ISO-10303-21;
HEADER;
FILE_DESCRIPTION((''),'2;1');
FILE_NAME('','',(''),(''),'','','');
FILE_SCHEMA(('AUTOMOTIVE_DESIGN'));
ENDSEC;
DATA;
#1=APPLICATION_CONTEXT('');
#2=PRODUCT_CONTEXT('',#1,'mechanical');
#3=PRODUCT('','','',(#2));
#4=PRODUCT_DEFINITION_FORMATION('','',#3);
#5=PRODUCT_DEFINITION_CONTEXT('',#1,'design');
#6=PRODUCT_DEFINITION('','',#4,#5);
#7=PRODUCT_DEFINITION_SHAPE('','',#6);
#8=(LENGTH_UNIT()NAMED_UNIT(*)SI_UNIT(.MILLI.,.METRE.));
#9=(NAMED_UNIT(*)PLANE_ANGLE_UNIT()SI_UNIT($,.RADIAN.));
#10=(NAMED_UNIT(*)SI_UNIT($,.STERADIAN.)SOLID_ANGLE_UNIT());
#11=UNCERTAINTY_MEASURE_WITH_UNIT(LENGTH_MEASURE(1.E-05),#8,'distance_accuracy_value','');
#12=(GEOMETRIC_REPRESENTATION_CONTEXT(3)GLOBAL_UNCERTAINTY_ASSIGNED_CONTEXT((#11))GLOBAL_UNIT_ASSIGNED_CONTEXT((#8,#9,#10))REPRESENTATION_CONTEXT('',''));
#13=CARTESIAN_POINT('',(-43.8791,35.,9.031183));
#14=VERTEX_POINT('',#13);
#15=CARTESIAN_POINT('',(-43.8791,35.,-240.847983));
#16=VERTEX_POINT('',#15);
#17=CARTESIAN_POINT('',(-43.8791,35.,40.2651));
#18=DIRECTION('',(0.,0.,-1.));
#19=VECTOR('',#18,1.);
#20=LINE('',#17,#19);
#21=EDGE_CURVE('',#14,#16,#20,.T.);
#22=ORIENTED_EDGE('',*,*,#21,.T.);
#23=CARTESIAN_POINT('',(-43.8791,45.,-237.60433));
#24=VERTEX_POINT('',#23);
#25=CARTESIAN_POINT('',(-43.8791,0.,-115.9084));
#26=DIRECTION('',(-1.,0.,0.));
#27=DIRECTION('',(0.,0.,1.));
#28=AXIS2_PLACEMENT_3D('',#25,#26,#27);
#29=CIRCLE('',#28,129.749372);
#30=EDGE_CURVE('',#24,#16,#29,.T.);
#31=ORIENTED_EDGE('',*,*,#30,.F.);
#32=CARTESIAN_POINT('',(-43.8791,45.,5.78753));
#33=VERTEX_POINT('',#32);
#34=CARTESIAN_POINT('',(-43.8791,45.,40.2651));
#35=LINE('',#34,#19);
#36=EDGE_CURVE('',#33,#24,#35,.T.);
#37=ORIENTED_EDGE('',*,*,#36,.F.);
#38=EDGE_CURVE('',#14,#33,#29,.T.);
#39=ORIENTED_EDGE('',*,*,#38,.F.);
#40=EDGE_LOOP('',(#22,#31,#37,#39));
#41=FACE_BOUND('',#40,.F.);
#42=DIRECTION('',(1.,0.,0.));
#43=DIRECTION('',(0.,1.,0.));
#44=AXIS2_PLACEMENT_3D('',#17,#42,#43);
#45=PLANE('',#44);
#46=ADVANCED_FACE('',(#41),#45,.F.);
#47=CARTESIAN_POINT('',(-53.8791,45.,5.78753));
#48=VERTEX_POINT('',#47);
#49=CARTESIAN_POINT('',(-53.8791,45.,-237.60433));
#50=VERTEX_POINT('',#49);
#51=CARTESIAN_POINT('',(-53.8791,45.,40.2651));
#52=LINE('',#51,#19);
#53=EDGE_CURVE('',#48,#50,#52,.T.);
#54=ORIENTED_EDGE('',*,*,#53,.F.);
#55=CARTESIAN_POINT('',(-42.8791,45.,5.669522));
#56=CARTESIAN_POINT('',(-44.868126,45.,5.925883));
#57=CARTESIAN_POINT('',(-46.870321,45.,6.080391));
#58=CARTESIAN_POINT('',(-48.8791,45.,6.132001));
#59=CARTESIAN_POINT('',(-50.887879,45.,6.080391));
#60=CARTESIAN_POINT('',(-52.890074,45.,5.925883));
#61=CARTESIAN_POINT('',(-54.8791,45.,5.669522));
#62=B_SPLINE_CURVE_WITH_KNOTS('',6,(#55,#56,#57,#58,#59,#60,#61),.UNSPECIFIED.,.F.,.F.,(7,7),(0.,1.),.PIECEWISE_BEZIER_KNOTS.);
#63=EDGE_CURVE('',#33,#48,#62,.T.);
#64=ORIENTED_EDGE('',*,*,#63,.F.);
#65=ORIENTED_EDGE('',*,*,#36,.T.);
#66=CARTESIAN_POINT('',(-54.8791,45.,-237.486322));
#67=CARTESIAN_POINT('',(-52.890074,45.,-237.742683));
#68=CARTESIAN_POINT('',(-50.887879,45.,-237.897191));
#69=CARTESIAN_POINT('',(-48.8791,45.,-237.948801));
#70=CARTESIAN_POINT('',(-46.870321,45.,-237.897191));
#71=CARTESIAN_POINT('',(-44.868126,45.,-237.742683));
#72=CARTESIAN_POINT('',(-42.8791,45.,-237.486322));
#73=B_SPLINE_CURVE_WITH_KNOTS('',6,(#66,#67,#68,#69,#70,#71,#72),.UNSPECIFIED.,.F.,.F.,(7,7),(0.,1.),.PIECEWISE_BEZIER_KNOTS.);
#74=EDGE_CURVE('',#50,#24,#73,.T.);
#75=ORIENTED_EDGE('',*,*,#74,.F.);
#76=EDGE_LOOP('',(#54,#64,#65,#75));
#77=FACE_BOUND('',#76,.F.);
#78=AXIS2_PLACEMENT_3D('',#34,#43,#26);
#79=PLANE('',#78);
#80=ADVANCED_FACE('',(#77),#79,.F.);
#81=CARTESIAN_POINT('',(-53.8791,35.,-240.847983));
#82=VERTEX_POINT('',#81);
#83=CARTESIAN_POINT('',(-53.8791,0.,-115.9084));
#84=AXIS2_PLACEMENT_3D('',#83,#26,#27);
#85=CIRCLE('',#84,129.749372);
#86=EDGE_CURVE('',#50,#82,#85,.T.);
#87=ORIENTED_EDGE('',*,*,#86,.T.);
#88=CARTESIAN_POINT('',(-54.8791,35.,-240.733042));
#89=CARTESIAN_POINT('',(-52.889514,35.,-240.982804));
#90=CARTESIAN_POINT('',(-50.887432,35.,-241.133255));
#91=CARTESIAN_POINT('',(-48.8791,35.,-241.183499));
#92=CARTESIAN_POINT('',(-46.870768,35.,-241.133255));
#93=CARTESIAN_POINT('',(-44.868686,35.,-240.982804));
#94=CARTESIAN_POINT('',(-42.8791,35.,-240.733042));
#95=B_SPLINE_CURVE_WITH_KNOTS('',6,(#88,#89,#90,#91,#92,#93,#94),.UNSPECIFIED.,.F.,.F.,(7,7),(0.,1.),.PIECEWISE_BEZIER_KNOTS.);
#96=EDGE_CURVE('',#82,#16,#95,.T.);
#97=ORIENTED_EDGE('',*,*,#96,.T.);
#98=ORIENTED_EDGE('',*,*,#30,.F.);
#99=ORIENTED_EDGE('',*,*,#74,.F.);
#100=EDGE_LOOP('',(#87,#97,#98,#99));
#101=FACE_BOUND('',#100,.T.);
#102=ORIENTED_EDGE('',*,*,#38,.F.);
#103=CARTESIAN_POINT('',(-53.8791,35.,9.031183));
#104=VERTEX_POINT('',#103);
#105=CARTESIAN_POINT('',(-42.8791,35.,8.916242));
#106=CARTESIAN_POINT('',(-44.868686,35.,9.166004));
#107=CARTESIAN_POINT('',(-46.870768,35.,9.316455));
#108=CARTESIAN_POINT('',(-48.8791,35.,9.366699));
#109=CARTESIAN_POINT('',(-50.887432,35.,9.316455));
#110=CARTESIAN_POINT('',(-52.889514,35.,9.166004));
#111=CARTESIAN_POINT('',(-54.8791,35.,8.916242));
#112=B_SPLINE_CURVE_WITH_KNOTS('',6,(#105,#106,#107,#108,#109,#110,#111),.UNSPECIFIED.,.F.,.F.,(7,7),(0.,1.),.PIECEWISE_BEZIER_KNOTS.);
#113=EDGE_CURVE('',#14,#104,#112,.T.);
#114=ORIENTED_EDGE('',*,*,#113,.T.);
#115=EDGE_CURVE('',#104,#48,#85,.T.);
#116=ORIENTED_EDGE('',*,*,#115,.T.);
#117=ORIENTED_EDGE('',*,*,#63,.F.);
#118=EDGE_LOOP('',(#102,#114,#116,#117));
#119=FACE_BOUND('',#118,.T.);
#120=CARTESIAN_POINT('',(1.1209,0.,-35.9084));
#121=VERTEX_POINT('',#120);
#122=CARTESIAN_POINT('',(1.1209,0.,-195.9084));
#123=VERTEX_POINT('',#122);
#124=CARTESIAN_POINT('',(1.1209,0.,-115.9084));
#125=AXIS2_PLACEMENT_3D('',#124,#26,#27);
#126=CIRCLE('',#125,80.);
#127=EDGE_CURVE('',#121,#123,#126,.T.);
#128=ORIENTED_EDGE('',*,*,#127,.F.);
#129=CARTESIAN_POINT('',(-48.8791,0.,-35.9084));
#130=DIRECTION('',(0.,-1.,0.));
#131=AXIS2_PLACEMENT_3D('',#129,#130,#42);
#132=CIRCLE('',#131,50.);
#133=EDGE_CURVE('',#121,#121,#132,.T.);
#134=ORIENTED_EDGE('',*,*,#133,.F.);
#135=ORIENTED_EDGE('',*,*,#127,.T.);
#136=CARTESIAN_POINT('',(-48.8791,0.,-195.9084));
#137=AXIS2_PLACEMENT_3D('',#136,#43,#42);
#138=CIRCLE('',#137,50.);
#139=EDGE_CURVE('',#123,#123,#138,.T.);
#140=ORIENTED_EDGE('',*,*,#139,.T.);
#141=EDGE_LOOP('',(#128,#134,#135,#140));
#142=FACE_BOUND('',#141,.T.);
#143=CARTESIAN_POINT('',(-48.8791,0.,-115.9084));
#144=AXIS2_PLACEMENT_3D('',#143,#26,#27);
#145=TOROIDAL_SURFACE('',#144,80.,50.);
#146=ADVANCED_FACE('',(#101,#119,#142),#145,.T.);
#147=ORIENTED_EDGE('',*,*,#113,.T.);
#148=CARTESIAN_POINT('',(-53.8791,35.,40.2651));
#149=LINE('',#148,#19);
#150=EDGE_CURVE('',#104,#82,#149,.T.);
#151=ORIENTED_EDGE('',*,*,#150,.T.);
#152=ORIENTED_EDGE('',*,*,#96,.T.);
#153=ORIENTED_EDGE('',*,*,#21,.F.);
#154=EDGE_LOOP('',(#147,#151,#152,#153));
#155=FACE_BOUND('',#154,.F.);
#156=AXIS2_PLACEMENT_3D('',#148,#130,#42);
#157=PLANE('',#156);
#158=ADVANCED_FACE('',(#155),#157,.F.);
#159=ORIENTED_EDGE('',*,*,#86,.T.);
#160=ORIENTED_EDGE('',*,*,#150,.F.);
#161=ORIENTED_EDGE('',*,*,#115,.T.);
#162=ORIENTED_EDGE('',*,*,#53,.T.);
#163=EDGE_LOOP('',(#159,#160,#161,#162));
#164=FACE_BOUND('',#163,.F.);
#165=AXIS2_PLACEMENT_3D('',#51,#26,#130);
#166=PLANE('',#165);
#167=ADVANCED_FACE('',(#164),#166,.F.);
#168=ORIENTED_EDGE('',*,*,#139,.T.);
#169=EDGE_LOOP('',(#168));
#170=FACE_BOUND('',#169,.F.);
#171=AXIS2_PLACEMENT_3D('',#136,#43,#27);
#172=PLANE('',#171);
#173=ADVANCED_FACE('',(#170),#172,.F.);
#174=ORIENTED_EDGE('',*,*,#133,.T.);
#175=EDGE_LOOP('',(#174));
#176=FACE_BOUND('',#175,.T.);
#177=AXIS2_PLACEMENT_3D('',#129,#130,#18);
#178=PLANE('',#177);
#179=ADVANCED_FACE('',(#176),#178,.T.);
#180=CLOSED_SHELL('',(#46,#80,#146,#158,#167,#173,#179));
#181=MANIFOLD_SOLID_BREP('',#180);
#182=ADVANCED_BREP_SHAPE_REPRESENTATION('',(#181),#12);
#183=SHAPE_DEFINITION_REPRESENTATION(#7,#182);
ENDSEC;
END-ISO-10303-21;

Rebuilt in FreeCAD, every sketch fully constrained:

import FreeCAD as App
import Part
import Sketcher

V = App.Vector
Q = App.Units.Quantity

doc = App.newDocument("Part")
body = doc.addObject("PartDesign::Body", "Body")

# Sketch on XZ plane
sketch1 = doc.addObject("Sketcher::SketchObject", "Sketch")
body.addObject(sketch1)
sketch1.AttachmentSupport = (doc.XZ_Plane, [""])
sketch1.MapMode = "FlatFace"
sketch1.addGeometry(Part.Circle(V(-48.8791, -35.9084, 0), V(0, 0, 1), 50), False)
sketch1.addGeometry(Part.LineSegment(V(-48.8791, -115.9084, 0), V(-58.8791, -115.9084, 0)), True)  # axis
sketch1.addConstraint([
    Sketcher.Constraint("Horizontal", 1),
    Sketcher.Constraint("Vertical", 0, 3, 1, 1),
    Sketcher.Constraint("Diameter", 0, Q("3.937 in")),
    Sketcher.Constraint("DistanceX", 1, 2, 1, 1, Q("0.3937 in")),
    Sketcher.Constraint("DistanceY", 1, 1, 0, 3, Q("3.1496 in")),
    Sketcher.Constraint("DistanceX", 0, 3, -1, 1, Q("48.879 mm")),
    Sketcher.Constraint("DistanceY", 0, 3, -1, 1, Q("35.9084 mm")),
])
revolution = doc.addObject("PartDesign::Revolution", "Revolution")
body.addObject(revolution)
revolution.Profile = sketch1
revolution.ReferenceAxis = (sketch1, ["Axis0"])
revolution.Angle = 180

# Sketch on XY plane
sketch2 = doc.addObject("Sketcher::SketchObject", "Sketch001")
body.addObject(sketch2)
sketch2.AttachmentSupport = (doc.XY_Plane, [""])
sketch2.MapMode = "FlatFace"
sketch2.AttachmentOffset = App.Placement(V(0, 0, 40.2651), App.Rotation())
sketch2.addGeometry([
    Part.LineSegment(V(-53.8791, 45, 0), V(-53.8791, 35, 0)),
    Part.LineSegment(V(-53.8791, 35, 0), V(-43.8791, 35, 0)),
    Part.LineSegment(V(-43.8791, 35, 0), V(-43.8791, 45, 0)),
    Part.LineSegment(V(-43.8791, 45, 0), V(-53.8791, 45, 0)),
], False)
sketch2.addConstraint([
    Sketcher.Constraint("Coincident", 0, 2, 1, 1),
    Sketcher.Constraint("Coincident", 1, 2, 2, 1),
    Sketcher.Constraint("Coincident", 2, 2, 3, 1),
    Sketcher.Constraint("Coincident", 3, 2, 0, 1),
    Sketcher.Constraint("Vertical", 0),
    Sketcher.Constraint("Horizontal", 1),
    Sketcher.Constraint("Vertical", 2),
    Sketcher.Constraint("Horizontal", 3),
    Sketcher.Constraint("Equal", 3, 0),
    Sketcher.Constraint("DistanceX", 0, 2, -1, 1, Q("53.879 mm")),
    Sketcher.Constraint("DistanceX", 1, 2, -1, 1, Q("43.879 mm")),
    Sketcher.Constraint("DistanceY", -1, 1, 0, 2, Q("35 mm")),
])
pocket1 = doc.addObject("PartDesign::Pocket", "Pocket")
body.addObject(pocket1)
pocket1.Profile = sketch2
pocket1.Type = "ThroughAll"

doc.recompute()
